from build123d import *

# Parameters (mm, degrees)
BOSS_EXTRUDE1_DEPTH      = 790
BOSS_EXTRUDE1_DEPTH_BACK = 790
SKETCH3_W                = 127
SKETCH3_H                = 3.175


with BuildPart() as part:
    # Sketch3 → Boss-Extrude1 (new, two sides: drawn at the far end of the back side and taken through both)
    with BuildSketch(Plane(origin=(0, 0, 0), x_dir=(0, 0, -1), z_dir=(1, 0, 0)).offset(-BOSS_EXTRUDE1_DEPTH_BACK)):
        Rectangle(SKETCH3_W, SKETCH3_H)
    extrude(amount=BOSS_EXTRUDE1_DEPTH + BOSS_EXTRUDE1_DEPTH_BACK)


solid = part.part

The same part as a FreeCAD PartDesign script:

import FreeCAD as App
import Part
import Sketcher
from FreeCAD import Vector
Q = App.Units.Quantity

doc = App.newDocument("Part")
body = doc.addObject("PartDesign::Body", "Body")

# Sketch on YZ plane
sketch1 = body.newObject("Sketcher::SketchObject", "Sketch")
sketch1.AttachmentSupport = (doc.getObject("YZ_Plane"), [""])
sketch1.MapMode = "FlatFace"
sketch1.addGeometry([
    Part.LineSegment(Vector(1.6, 63.5, 0), Vector(-1.6, 63.5, 0)),
    Part.LineSegment(Vector(-1.6, 63.5, 0), Vector(-1.6, -63.5, 0)),
    Part.LineSegment(Vector(-1.6, -63.5, 0), Vector(1.6, -63.5, 0)),
    Part.LineSegment(Vector(1.6, -63.5, 0), Vector(1.6, 63.5, 0)),
], False)
sketch1.addConstraint([
    Sketcher.Constraint("Coincident", 0, 2, 1, 1),
    Sketcher.Constraint("Coincident", 1, 2, 2, 1),
    Sketcher.Constraint("Coincident", 2, 2, 3, 1),
    Sketcher.Constraint("Coincident", 3, 2, 0, 1),
    Sketcher.Constraint("Horizontal", 0),
    Sketcher.Constraint("Vertical", 1),
    Sketcher.Constraint("Horizontal", 2),
    Sketcher.Constraint("Vertical", 3),
    Sketcher.Constraint("Symmetric", 0, 2, 2, 2, -1, 1),
    Sketcher.Constraint("DistanceY", 1, 2, 1, 1, Q("5 in")),
    Sketcher.Constraint("DistanceX", 0, 2, 0, 1, Q("0.125 in")),
])
pad1 = body.newObject("PartDesign::Pad", "Pad")
pad1.Profile = sketch1
pad1.Type = "TwoLengths"
pad1.Length = 790
pad1.Length2 = 790

doc.recompute()
